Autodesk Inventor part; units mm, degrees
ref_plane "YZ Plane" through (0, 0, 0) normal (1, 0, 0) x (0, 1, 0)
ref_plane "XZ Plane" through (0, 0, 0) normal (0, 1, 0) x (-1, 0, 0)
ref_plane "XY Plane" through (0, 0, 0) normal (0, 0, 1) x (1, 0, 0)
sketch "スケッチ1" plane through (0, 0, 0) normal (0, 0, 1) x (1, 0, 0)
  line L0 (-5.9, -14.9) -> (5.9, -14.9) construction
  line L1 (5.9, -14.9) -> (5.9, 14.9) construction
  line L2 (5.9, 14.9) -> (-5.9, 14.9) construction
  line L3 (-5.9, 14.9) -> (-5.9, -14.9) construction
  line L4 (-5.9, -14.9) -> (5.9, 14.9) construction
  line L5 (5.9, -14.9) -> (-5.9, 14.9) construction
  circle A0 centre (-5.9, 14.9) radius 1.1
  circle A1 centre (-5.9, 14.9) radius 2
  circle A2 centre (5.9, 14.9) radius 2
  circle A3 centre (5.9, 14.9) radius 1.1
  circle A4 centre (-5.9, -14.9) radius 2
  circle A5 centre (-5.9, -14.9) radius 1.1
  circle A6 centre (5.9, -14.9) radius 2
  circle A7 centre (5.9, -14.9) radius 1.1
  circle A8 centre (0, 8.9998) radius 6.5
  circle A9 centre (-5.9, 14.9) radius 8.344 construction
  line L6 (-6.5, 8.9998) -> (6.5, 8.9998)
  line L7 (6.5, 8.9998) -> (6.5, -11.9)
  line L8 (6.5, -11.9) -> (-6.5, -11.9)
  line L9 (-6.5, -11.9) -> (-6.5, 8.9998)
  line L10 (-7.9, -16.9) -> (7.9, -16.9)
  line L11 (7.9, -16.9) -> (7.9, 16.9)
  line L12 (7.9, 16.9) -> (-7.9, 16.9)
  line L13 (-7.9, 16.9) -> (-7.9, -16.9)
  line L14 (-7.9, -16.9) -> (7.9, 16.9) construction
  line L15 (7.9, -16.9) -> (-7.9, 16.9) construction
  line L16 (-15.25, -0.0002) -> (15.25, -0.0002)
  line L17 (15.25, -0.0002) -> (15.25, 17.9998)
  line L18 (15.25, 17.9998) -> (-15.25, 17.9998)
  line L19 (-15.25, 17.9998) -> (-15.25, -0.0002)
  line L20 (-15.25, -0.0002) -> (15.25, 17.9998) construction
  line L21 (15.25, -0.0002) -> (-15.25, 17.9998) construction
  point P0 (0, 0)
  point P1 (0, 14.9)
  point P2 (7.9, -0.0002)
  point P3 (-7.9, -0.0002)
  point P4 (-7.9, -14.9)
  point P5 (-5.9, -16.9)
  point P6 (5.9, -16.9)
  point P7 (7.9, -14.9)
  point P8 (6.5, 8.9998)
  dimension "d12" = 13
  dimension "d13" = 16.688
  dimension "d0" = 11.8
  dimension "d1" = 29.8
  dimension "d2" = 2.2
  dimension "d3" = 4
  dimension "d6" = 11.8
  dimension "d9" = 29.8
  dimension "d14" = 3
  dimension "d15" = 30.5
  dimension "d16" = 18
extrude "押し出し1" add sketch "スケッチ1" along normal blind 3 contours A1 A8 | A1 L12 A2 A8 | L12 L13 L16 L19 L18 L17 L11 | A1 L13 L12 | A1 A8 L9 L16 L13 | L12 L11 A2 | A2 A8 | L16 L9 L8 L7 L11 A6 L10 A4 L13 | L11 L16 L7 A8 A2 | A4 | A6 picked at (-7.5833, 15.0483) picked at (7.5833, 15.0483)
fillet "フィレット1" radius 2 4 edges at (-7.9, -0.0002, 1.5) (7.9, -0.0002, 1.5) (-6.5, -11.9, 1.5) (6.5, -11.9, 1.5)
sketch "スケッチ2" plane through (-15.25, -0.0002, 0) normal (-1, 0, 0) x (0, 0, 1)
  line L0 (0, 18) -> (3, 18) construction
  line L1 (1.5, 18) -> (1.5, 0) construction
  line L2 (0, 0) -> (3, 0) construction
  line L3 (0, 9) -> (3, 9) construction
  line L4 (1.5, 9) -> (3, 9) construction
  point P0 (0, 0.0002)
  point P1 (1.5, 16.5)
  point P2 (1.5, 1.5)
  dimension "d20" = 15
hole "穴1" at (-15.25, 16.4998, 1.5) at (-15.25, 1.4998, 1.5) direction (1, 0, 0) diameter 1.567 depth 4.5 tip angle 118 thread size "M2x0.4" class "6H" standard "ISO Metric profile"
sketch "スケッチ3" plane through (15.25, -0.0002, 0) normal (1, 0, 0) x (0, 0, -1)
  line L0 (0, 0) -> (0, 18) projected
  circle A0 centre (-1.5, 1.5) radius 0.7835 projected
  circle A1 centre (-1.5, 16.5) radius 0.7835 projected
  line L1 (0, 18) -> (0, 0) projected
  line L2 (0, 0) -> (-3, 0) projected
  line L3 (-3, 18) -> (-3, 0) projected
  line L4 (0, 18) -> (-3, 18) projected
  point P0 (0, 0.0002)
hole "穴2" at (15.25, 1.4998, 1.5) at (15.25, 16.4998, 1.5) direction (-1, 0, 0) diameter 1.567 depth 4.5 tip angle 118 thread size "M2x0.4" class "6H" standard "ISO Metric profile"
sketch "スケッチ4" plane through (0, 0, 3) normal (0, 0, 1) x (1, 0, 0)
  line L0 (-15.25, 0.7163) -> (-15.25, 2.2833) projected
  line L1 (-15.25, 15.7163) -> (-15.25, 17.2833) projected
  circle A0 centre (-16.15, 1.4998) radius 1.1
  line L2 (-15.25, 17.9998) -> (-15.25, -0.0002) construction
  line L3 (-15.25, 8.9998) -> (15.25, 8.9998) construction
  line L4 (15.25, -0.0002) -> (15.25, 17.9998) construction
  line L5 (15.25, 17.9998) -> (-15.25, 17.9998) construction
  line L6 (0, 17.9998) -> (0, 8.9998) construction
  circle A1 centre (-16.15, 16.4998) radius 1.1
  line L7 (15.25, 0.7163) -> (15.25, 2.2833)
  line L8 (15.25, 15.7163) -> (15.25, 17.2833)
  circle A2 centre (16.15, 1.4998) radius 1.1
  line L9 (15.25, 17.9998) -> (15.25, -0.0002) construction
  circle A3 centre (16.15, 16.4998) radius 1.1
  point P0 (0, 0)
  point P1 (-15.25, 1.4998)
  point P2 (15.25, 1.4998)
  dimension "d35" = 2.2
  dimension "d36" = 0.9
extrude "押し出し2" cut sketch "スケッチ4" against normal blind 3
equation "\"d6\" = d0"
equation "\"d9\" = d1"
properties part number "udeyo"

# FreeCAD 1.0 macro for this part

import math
import FreeCAD as App
import Part
import Sketcher
Q = App.Units.Quantity


def edges_at(feature, points):
    """Names of the edges that pass closest to the given points."""
    edges = feature.Shape.Edges
    near = lambda p: min(range(len(edges)), key=lambda i: edges[i].distToShape(Part.Vertex(*p))[0])
    return sorted({f"Edge{near(p) + 1}" for p in points})

doc = App.newDocument("Part")
params = doc.addObject("Spreadsheet::Sheet", "Params")
for row, (alias, value) in enumerate([
    ("sketch1_radius", "2 mm"),
    ("sketch1_diameter", "2.2 mm"),
    ("sketch1_radius2", "6.5 mm"),
    ("sketch1_height", "18 mm"),
    ("sketch1_width", "11.8 mm"),
    ("pad1_length", "3 mm"),
    ("fillet_radius", "2 mm"),
    ("hole_diameter", "1.567 mm"),
    ("hole_depth", "4.5 mm"),
    ("hole2_diameter", "1.567 mm"),
    ("hole2_depth", "4.5 mm"),
    ("sketch4_diameter", "2.2 mm"),
    ("pocket1_length", "3 mm"),
], start=1):
    params.set(f"A{row}", alias)
    params.set(f"B{row}", "=" + value)
    params.setAlias(f"B{row}", alias)

body = doc.addObject("PartDesign::Body", "Body")

sketch1 = body.newObject("Sketcher::SketchObject", "Sketch")
sketch1.AttachmentSupport = (doc.getObject("XY_Plane"), [""])
sketch1.MapMode = "FlatFace"
sketch1.addGeometry([
    Part.LineSegment(App.Vector(-15.2, 0, 0), App.Vector(-7.9, 0, 0)),
    Part.LineSegment(App.Vector(-7.9, 0, 0), App.Vector(-7.9, -14.9, 0)),
    Part.ArcOfCircle(Part.Circle(App.Vector(-5.9, -14.9, 0), App.Vector(0, 0, 1), 2), math.radians(180), math.radians(270)),
    Part.LineSegment(App.Vector(-5.9, -16.9, 0), App.Vector(5.9, -16.9, 0)),
    Part.ArcOfCircle(Part.Circle(App.Vector(5.9, -14.9, 0), App.Vector(0, 0, 1), 2), math.radians(-90), math.radians(0)),
    Part.LineSegment(App.Vector(7.9, -14.9, 0), App.Vector(7.9, 0, 0)),
    Part.LineSegment(App.Vector(7.9, 0, 0), App.Vector(15.2, 0, 0)),
    Part.LineSegment(App.Vector(15.2, 0, 0), App.Vector(15.2, 18, 0)),
    Part.LineSegment(App.Vector(15.2, 18, 0), App.Vector(-15.2, 18, 0)),
    Part.LineSegment(App.Vector(-15.2, 18, 0), App.Vector(-15.2, 0, 0)),
    Part.LineSegment(App.Vector(6.5, 9, 0), App.Vector(6.5, -11.9, 0)),
    Part.LineSegment(App.Vector(6.5, -11.9, 0), App.Vector(-6.5, -11.9, 0)),
    Part.LineSegment(App.Vector(-6.5, -11.9, 0), App.Vector(-6.5, 9, 0)),
    Part.ArcOfCircle(Part.Circle(App.Vector(0, 9, 0), App.Vector(0, 0, 1), 6.5), math.radians(0), math.radians(180)),
    Part.Circle(App.Vector(-5.9, 14.9, 0), App.Vector(0, 0, 1), 1.1),
    Part.Circle(App.Vector(5.9, 14.9, 0), App.Vector(0, 0, 1), 1.1),
    Part.Circle(App.Vector(5.9, -14.9, 0), App.Vector(0, 0, 1), 1.1),
    Part.Circle(App.Vector(-5.9, -14.9, 0), App.Vector(0, 0, 1), 1.1),
], False)
sketch1.addConstraint([
    Sketcher.Constraint("Coincident", 0, 2, 1, 1),
    Sketcher.Constraint("Tangent", 1, 2, 2, 1),
    Sketcher.Constraint("Tangent", 2, 2, 3, 1),
    Sketcher.Constraint("Tangent", 3, 2, 4, 1),
    Sketcher.Constraint("Tangent", 4, 2, 5, 1),
    Sketcher.Constraint("Coincident", 5, 2, 6, 1),
    Sketcher.Constraint("Coincident", 6, 2, 7, 1),
    Sketcher.Constraint("Coincident", 7, 2, 8, 1),
    Sketcher.Constraint("Coincident", 8, 2, 9, 1),
    Sketcher.Constraint("Coincident", 9, 2, 0, 1),
    Sketcher.Constraint("Coincident", 10, 2, 11, 1),
    Sketcher.Constraint("Coincident", 11, 2, 12, 1),
    Sketcher.Constraint("Tangent", 12, 2, 13, 2),
    Sketcher.Constraint("Tangent", 13, 1, 10, 1),
    Sketcher.Constraint("Horizontal", 0),
    Sketcher.Constraint("Vertical", 1),
    Sketcher.Constraint("Horizontal", 3),
    Sketcher.Constraint("Vertical", 5),
    Sketcher.Constraint("Horizontal", 6),
    Sketcher.Constraint("Vertical", 7),
    Sketcher.Constraint("Horizontal", 8),
    Sketcher.Constraint("Vertical", 9),
    Sketcher.Constraint("Vertical", 10),
    Sketcher.Constraint("Horizontal", 11),
    Sketcher.Constraint("Vertical", 12),
    Sketcher.Constraint("Coincident", 16, 3, 4, 3),
    Sketcher.Constraint("Coincident", 17, 3, 2, 3),
    Sketcher.Constraint("Equal", 2, 4),
    Sketcher.Constraint("Equal", 14, 15),
    Sketcher.Constraint("Equal", 15, 16),
    Sketcher.Constraint("Equal", 16, 17),
    Sketcher.Constraint("Symmetric", 4, 3, 14, 3, -1, 1),
    Sketcher.Constraint("Symmetric", 2, 3, 15, 3, -1, 1),
    Sketcher.Constraint("Symmetric", 0, 2, 5, 2, -2),
    Sketcher.Constraint("PointOnObject", 13, 3, -2),
    Sketcher.Constraint("Equal", 0, 6),
    Sketcher.Constraint("Radius", 2, Q("2 mm")),
    Sketcher.Constraint("Diameter", 14, Q("2.2 mm")),
    Sketcher.Constraint("Radius", 13, Q("6.5 mm")),
    Sketcher.Constraint("DistanceY", 7, 1, 7, 2, Q("18 mm")),
    Sketcher.Constraint("DistanceX", 3, 1, 3, 2, Q("11.8 mm")),
    Sketcher.Constraint("DistanceX", 8, 2, 8, 1, Q("30.5 mm")),
    Sketcher.Constraint("DistanceY", 4, 3, 10, 2, Q("3 mm")),
    Sketcher.Constraint("DistanceY", 2, 3, 14, 3, Q("29.8 mm")),
    Sketcher.Constraint("DistanceY", 0, 2, 13, 3, Q("9 mm")),
    Sketcher.Constraint("DistanceY", -1, 1, 7, 2, Q("17.9998 mm")),
])
sketch1.setExpression("Constraints[36]", "Params.sketch1_radius")
sketch1.setExpression("Constraints[37]", "Params.sketch1_diameter")
sketch1.setExpression("Constraints[38]", "Params.sketch1_radius2")
sketch1.setExpression("Constraints[39]", "Params.sketch1_height")
sketch1.setExpression("Constraints[40]", "Params.sketch1_width")
pad1 = body.newObject("PartDesign::Pad", "Pad")
pad1.Profile = sketch1
pad1.setExpression("Length", "Params.pad1_length")
doc.recompute()

fillet = body.newObject("PartDesign::Fillet", "Fillet")
fillet.Base = (pad1, edges_at(pad1, [
    (-7.9, 0, 1.5),
    (7.9, 0, 1.5),
    (-6.5, -11.9, 1.5),
    (6.5, -11.9, 1.5),
]))
fillet.setExpression("Radius", "Params.fillet_radius")

sketch2 = body.newObject("Sketcher::SketchObject", "Sketch001")
sketch2.AttachmentSupport = (doc.getObject("YZ_Plane"), [""])
sketch2.MapMode = "FlatFace"
sketch2.AttachmentOffset = App.Placement(App.Vector(0, 0, -15.25), App.Rotation())
sketch2.addGeometry([
    Part.Circle(App.Vector(16.5, 1.5, 0), App.Vector(0, 0, 1), 0.8),
    Part.Circle(App.Vector(1.5, 1.5, 0), App.Vector(0, 0, 1), 0.8),
], False)
sketch2.addConstraint([
    Sketcher.Constraint("Equal", 0, 1),
    Sketcher.Constraint("Horizontal", 0, 3, 1, 3),
    Sketcher.Constraint("Diameter", 0, Q("1.567 mm")),
    Sketcher.Constraint("DistanceX", 1, 3, 0, 3, Q("15 mm")),
    Sketcher.Constraint("DistanceY", -1, 1, 0, 3, Q("1.5 mm")),
    Sketcher.Constraint("DistanceX", -1, 1, 0, 3, Q("16.4998 mm")),
])
doc.recompute()
hole = body.newObject("PartDesign::Hole", "Hole")
hole.Profile = sketch2
hole.ThreadType = "None"
hole.setExpression("Diameter", "Params.hole_diameter")
hole.DepthType = "Dimension"
hole.setExpression("Depth", "Params.hole_depth")
hole.DrillPoint = "Angled"
hole.DrillPointAngle = 118
hole.Reversed = True

sketch3 = body.newObject("Sketcher::SketchObject", "Sketch002")
sketch3.AttachmentSupport = (doc.getObject("YZ_Plane"), [""])
sketch3.MapMode = "FlatFace"
sketch3.AttachmentOffset = App.Placement(App.Vector(0, 0, 15.25), App.Rotation())
sketch3.addGeometry([
    Part.Circle(App.Vector(1.5, 1.5, 0), App.Vector(0, 0, 1), 0.8),
    Part.Circle(App.Vector(16.5, 1.5, 0), App.Vector(0, 0, 1), 0.8),
], False)
sketch3.addConstraint([
    Sketcher.Constraint("Equal", 0, 1),
    Sketcher.Constraint("Horizontal", 0, 3, 1, 3),
    Sketcher.Constraint("Diameter", 0, Q("1.567 mm")),
    Sketcher.Constraint("DistanceX", 0, 3, 1, 3, Q("15 mm")),
    Sketcher.Constraint("DistanceY", -1, 1, 0, 3, Q("1.5 mm")),
    Sketcher.Constraint("DistanceX", -1, 1, 0, 3, Q("1.4998 mm")),
])
doc.recompute()
hole2 = body.newObject("PartDesign::Hole", "Hole001")
hole2.Profile = sketch3
hole2.ThreadType = "None"
hole2.setExpression("Diameter", "Params.hole2_diameter")
hole2.DepthType = "Dimension"
hole2.setExpression("Depth", "Params.hole2_depth")
hole2.DrillPoint = "Angled"
hole2.DrillPointAngle = 118

sketch4 = body.newObject("Sketcher::SketchObject", "Sketch003")
sketch4.AttachmentSupport = (doc.getObject("XY_Plane"), [""])
sketch4.MapMode = "FlatFace"
sketch4.AttachmentOffset = App.Placement(App.Vector(0, 0, 3), App.Rotation())
sketch4.addGeometry([
    Part.Circle(App.Vector(-16.1, 1.5, 0), App.Vector(0, 0, 1), 1.1),
    Part.Circle(App.Vector(-16.1, 16.5, 0), App.Vector(0, 0, 1), 1.1),
    Part.Circle(App.Vector(16.1, 1.5, 0), App.Vector(0, 0, 1), 1.1),
    Part.Circle(App.Vector(16.1, 16.5, 0), App.Vector(0, 0, 1), 1.1),
], False)
sketch4.addConstraint([
    Sketcher.Constraint("Equal", 0, 1),
    Sketcher.Constraint("Equal", 1, 2),
    Sketcher.Constraint("Equal", 2, 3),
    Sketcher.Constraint("Symmetric", 0, 3, 2, 3, -2),
    Sketcher.Constraint("Symmetric", 1, 3, 3, 3, -2),
    Sketcher.Constraint("Vertical", 0, 3, 1, 3),
    Sketcher.Constraint("Diameter", 0, Q("2.2 mm")),
    Sketcher.Constraint("DistanceY", 0, 3, 1, 3, Q("15 mm")),
    Sketcher.Constraint("DistanceX", 0, 3, 2, 3, Q("32.3 mm")),
    Sketcher.Constraint("DistanceY", -1, 1, 0, 3, Q("1.4998 mm")),
])
sketch4.setExpression("Constraints[6]", "Params.sketch4_diameter")
pocket1 = body.newObject("PartDesign::Pocket", "Pocket")
pocket1.Profile = sketch4
pocket1.setExpression("Length", "Params.pocket1_length")

doc.recompute()
